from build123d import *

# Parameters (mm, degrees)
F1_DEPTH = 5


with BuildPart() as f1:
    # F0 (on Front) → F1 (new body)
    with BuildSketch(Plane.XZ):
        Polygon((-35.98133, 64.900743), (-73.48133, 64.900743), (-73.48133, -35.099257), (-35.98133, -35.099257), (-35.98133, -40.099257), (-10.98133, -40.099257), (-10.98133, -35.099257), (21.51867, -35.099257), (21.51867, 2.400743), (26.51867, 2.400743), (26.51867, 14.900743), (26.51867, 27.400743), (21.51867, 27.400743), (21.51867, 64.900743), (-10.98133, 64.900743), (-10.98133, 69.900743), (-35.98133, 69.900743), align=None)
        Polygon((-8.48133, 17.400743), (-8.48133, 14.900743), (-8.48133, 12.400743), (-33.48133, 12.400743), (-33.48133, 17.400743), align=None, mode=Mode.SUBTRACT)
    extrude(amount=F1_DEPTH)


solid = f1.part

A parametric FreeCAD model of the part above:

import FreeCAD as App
import Part
import Sketcher

V = App.Vector


def add_polygon(sketch, points):
    """Adds a closed chain of lines whose ends are joined by coincident constraints."""
    first, n = sketch.GeometryCount, len(points)
    for a, b in zip(points, points[1:] + points[:1]):
        sketch.addGeometry(Part.LineSegment(App.Vector(*a, 0), App.Vector(*b, 0)), False)
    for i in range(n):
        sketch.addConstraint(Sketcher.Constraint("Coincident", first + i, 2, first + (i + 1) % n, 1))

doc = App.newDocument("Part")
params = doc.addObject("Spreadsheet::Sheet", "Params")
for row, (alias, value) in enumerate([
    ("sketch1_width", "25 mm"),
    ("sketch1_width2", "5 mm"),
    ("sketch1_height", "100 mm"),
    ("sketch1_width3", "32.5 mm"),
    ("pad1_length", "5 mm"),
], start=1):
    params.set(f"A{row}", alias)
    params.set(f"B{row}", "=" + value)
    params.setAlias(f"B{row}", alias)

body = doc.addObject("PartDesign::Body", "Body")

# Sketch on XZ plane
sketch1 = body.newObject("Sketcher::SketchObject", "Sketch")
sketch1.AttachmentSupport = (doc.getObject("XZ_Plane"), [""])
sketch1.MapMode = "FlatFace"
add_polygon(sketch1, [(-35.98133, 64.900743), (-73.48133, 64.900743), (-73.48133, -35.099257), (-35.98133, -35.099257), (-35.98133, -40.099257), (-10.98133, -40.099257), (-10.98133, -35.099257), (21.51867, -35.099257), (21.51867, 2.400743), (26.51867, 2.400743), (26.51867, 27.400743), (21.51867, 27.400743), (21.51867, 64.900743), (-10.98133, 64.900743), (-10.98133, 69.900743), (-35.98133, 69.900743)])  # lines 0-15
add_polygon(sketch1, [(-33.48133, 17.400743), (-8.48133, 17.400743), (-8.48133, 12.400743), (-33.48133, 12.400743)])  # lines 16-19
sketch1.addConstraint(Sketcher.Constraint("Horizontal", 0))
sketch1.addConstraint(Sketcher.Constraint("Vertical", 1))
sketch1.addConstraint(Sketcher.Constraint("Horizontal", 2))
sketch1.addConstraint(Sketcher.Constraint("Vertical", 3))
sketch1.addConstraint(Sketcher.Constraint("Horizontal", 4))
sketch1.addConstraint(Sketcher.Constraint("Vertical", 5))
sketch1.addConstraint(Sketcher.Constraint("Horizontal", 6))
sketch1.addConstraint(Sketcher.Constraint("Vertical", 7))
sketch1.addConstraint(Sketcher.Constraint("Horizontal", 8))
sketch1.addConstraint(Sketcher.Constraint("Vertical", 9))
sketch1.addConstraint(Sketcher.Constraint("Horizontal", 10))
sketch1.addConstraint(Sketcher.Constraint("Vertical", 11))
sketch1.addConstraint(Sketcher.Constraint("Horizontal", 12))
sketch1.addConstraint(Sketcher.Constraint("Vertical", 13))
sketch1.addConstraint(Sketcher.Constraint("Horizontal", 14))
sketch1.addConstraint(Sketcher.Constraint("Vertical", 15))
sketch1.addConstraint(Sketcher.Constraint("Horizontal", 16))
sketch1.addConstraint(Sketcher.Constraint("Vertical", 17))
sketch1.addConstraint(Sketcher.Constraint("Horizontal", 18))
sketch1.addConstraint(Sketcher.Constraint("Vertical", 19))
sketch1.addConstraint(Sketcher.Constraint("Horizontal", 2, 2, 5, 2))
sketch1.addConstraint(Sketcher.Constraint("Horizontal", 0, 2, 11, 2))
sketch1.addConstraint(Sketcher.Constraint("Vertical", 7, 2, 10, 2))
sketch1.addConstraint(Sketcher.Constraint("Vertical", 5, 2, 12, 2))
sketch1.addConstraint(Sketcher.Constraint("Vertical", 3, 2, 14, 2))
sketch1.addConstraint(Sketcher.Constraint("Equal", 14, 16))
sketch1.addConstraint(Sketcher.Constraint("Equal", 10, 3))
sketch1.addConstraint(Sketcher.Constraint("Equal", 2, 7))
sketch1.addConstraint(Sketcher.Constraint("Equal", 18, 9))
sketch1.addConstraint(Sketcher.Constraint("Equal", 7, 11))
sketch1.addConstraint(Sketcher.Constraint("Equal", 5, 13))
sketch1.addConstraint(Sketcher.Constraint("Equal", 15, 17))
sketch1.addConstraint(Sketcher.Constraint("DistanceX", 4, 1, 4, 2, 25.0))
sketch1.addConstraint(Sketcher.Constraint("DistanceX", 8, 1, 8, 2, 5.0))
sketch1.addConstraint(Sketcher.Constraint("DistanceY", 1, 2, 1, 1, 100.0))
sketch1.addConstraint(Sketcher.Constraint("DistanceX", 6, 1, 6, 2, 32.5))
sketch1.addConstraint(Sketcher.Constraint("DistanceX", 16, 2, 10, 2, 30.0))
sketch1.addConstraint(Sketcher.Constraint("DistanceY", 16, 2, 10, 2, 10.0))
sketch1.addConstraint(Sketcher.Constraint("DistanceX", 0, 2, -1, 1, 73.48133))
sketch1.addConstraint(Sketcher.Constraint("DistanceY", -1, 1, 0, 2, 64.900743))
sketch1.setExpression("Constraints[52]", "Params.sketch1_width")
sketch1.setExpression("Constraints[53]", "Params.sketch1_width2")
sketch1.setExpression("Constraints[54]", "Params.sketch1_height")
sketch1.setExpression("Constraints[55]", "Params.sketch1_width3")
pad1 = body.newObject("PartDesign::Pad", "Pad")
pad1.Profile = sketch1
pad1.setExpression("Length", "Params.pad1_length")

doc.recompute()
